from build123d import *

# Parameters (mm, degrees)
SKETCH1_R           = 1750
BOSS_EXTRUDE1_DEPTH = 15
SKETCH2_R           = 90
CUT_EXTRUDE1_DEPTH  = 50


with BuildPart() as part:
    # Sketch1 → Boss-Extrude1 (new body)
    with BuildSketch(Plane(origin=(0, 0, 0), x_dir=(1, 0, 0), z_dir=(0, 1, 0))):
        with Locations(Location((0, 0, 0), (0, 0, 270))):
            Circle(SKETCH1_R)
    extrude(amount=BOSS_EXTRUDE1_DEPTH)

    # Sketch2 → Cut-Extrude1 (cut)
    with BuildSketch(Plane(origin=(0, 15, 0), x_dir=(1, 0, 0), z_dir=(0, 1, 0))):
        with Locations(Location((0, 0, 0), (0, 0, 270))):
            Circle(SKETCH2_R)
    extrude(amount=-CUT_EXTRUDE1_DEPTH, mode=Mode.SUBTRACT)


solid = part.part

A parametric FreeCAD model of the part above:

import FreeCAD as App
import Part
import Sketcher

V = App.Vector

doc = App.newDocument("Part")
body = doc.addObject("PartDesign::Body", "Body")

# Sketch on XZ plane
sketch1 = doc.addObject("Sketcher::SketchObject", "Sketch")
body.addObject(sketch1)
sketch1.AttachmentSupport = (doc.XZ_Plane, [""])
sketch1.MapMode = "FlatFace"
sketch1.addGeometry(Part.Circle(V(0, 0, 0), V(0, 0, 1), 1750), False)
sketch1.addConstraint(Sketcher.Constraint("Coincident", 0, 3, -1, 1))
sketch1.addConstraint(Sketcher.Constraint("Diameter", 0, 3500.0))
pad1 = doc.addObject("PartDesign::Pad", "Pad")
body.addObject(pad1)
pad1.Profile = sketch1
pad1.Length = 15
pad1.Reversed = True

# Sketch on XZ plane
sketch2 = doc.addObject("Sketcher::SketchObject", "Sketch001")
body.addObject(sketch2)
sketch2.AttachmentSupport = (doc.XZ_Plane, [""])
sketch2.MapMode = "FlatFace"
sketch2.AttachmentOffset = App.Placement(V(0, 0, -15), App.Rotation())
sketch2.addGeometry(Part.Circle(V(0, 0, 0), V(0, 0, 1), 90), False)
sketch2.addConstraint(Sketcher.Constraint("Coincident", 0, 3, -1, 1))
sketch2.addConstraint(Sketcher.Constraint("Diameter", 0, 180.0))
pocket1 = doc.addObject("PartDesign::Pocket", "Pocket")
body.addObject(pocket1)
pocket1.Profile = sketch2
pocket1.Length = 50
pocket1.Reversed = True

doc.recompute()
